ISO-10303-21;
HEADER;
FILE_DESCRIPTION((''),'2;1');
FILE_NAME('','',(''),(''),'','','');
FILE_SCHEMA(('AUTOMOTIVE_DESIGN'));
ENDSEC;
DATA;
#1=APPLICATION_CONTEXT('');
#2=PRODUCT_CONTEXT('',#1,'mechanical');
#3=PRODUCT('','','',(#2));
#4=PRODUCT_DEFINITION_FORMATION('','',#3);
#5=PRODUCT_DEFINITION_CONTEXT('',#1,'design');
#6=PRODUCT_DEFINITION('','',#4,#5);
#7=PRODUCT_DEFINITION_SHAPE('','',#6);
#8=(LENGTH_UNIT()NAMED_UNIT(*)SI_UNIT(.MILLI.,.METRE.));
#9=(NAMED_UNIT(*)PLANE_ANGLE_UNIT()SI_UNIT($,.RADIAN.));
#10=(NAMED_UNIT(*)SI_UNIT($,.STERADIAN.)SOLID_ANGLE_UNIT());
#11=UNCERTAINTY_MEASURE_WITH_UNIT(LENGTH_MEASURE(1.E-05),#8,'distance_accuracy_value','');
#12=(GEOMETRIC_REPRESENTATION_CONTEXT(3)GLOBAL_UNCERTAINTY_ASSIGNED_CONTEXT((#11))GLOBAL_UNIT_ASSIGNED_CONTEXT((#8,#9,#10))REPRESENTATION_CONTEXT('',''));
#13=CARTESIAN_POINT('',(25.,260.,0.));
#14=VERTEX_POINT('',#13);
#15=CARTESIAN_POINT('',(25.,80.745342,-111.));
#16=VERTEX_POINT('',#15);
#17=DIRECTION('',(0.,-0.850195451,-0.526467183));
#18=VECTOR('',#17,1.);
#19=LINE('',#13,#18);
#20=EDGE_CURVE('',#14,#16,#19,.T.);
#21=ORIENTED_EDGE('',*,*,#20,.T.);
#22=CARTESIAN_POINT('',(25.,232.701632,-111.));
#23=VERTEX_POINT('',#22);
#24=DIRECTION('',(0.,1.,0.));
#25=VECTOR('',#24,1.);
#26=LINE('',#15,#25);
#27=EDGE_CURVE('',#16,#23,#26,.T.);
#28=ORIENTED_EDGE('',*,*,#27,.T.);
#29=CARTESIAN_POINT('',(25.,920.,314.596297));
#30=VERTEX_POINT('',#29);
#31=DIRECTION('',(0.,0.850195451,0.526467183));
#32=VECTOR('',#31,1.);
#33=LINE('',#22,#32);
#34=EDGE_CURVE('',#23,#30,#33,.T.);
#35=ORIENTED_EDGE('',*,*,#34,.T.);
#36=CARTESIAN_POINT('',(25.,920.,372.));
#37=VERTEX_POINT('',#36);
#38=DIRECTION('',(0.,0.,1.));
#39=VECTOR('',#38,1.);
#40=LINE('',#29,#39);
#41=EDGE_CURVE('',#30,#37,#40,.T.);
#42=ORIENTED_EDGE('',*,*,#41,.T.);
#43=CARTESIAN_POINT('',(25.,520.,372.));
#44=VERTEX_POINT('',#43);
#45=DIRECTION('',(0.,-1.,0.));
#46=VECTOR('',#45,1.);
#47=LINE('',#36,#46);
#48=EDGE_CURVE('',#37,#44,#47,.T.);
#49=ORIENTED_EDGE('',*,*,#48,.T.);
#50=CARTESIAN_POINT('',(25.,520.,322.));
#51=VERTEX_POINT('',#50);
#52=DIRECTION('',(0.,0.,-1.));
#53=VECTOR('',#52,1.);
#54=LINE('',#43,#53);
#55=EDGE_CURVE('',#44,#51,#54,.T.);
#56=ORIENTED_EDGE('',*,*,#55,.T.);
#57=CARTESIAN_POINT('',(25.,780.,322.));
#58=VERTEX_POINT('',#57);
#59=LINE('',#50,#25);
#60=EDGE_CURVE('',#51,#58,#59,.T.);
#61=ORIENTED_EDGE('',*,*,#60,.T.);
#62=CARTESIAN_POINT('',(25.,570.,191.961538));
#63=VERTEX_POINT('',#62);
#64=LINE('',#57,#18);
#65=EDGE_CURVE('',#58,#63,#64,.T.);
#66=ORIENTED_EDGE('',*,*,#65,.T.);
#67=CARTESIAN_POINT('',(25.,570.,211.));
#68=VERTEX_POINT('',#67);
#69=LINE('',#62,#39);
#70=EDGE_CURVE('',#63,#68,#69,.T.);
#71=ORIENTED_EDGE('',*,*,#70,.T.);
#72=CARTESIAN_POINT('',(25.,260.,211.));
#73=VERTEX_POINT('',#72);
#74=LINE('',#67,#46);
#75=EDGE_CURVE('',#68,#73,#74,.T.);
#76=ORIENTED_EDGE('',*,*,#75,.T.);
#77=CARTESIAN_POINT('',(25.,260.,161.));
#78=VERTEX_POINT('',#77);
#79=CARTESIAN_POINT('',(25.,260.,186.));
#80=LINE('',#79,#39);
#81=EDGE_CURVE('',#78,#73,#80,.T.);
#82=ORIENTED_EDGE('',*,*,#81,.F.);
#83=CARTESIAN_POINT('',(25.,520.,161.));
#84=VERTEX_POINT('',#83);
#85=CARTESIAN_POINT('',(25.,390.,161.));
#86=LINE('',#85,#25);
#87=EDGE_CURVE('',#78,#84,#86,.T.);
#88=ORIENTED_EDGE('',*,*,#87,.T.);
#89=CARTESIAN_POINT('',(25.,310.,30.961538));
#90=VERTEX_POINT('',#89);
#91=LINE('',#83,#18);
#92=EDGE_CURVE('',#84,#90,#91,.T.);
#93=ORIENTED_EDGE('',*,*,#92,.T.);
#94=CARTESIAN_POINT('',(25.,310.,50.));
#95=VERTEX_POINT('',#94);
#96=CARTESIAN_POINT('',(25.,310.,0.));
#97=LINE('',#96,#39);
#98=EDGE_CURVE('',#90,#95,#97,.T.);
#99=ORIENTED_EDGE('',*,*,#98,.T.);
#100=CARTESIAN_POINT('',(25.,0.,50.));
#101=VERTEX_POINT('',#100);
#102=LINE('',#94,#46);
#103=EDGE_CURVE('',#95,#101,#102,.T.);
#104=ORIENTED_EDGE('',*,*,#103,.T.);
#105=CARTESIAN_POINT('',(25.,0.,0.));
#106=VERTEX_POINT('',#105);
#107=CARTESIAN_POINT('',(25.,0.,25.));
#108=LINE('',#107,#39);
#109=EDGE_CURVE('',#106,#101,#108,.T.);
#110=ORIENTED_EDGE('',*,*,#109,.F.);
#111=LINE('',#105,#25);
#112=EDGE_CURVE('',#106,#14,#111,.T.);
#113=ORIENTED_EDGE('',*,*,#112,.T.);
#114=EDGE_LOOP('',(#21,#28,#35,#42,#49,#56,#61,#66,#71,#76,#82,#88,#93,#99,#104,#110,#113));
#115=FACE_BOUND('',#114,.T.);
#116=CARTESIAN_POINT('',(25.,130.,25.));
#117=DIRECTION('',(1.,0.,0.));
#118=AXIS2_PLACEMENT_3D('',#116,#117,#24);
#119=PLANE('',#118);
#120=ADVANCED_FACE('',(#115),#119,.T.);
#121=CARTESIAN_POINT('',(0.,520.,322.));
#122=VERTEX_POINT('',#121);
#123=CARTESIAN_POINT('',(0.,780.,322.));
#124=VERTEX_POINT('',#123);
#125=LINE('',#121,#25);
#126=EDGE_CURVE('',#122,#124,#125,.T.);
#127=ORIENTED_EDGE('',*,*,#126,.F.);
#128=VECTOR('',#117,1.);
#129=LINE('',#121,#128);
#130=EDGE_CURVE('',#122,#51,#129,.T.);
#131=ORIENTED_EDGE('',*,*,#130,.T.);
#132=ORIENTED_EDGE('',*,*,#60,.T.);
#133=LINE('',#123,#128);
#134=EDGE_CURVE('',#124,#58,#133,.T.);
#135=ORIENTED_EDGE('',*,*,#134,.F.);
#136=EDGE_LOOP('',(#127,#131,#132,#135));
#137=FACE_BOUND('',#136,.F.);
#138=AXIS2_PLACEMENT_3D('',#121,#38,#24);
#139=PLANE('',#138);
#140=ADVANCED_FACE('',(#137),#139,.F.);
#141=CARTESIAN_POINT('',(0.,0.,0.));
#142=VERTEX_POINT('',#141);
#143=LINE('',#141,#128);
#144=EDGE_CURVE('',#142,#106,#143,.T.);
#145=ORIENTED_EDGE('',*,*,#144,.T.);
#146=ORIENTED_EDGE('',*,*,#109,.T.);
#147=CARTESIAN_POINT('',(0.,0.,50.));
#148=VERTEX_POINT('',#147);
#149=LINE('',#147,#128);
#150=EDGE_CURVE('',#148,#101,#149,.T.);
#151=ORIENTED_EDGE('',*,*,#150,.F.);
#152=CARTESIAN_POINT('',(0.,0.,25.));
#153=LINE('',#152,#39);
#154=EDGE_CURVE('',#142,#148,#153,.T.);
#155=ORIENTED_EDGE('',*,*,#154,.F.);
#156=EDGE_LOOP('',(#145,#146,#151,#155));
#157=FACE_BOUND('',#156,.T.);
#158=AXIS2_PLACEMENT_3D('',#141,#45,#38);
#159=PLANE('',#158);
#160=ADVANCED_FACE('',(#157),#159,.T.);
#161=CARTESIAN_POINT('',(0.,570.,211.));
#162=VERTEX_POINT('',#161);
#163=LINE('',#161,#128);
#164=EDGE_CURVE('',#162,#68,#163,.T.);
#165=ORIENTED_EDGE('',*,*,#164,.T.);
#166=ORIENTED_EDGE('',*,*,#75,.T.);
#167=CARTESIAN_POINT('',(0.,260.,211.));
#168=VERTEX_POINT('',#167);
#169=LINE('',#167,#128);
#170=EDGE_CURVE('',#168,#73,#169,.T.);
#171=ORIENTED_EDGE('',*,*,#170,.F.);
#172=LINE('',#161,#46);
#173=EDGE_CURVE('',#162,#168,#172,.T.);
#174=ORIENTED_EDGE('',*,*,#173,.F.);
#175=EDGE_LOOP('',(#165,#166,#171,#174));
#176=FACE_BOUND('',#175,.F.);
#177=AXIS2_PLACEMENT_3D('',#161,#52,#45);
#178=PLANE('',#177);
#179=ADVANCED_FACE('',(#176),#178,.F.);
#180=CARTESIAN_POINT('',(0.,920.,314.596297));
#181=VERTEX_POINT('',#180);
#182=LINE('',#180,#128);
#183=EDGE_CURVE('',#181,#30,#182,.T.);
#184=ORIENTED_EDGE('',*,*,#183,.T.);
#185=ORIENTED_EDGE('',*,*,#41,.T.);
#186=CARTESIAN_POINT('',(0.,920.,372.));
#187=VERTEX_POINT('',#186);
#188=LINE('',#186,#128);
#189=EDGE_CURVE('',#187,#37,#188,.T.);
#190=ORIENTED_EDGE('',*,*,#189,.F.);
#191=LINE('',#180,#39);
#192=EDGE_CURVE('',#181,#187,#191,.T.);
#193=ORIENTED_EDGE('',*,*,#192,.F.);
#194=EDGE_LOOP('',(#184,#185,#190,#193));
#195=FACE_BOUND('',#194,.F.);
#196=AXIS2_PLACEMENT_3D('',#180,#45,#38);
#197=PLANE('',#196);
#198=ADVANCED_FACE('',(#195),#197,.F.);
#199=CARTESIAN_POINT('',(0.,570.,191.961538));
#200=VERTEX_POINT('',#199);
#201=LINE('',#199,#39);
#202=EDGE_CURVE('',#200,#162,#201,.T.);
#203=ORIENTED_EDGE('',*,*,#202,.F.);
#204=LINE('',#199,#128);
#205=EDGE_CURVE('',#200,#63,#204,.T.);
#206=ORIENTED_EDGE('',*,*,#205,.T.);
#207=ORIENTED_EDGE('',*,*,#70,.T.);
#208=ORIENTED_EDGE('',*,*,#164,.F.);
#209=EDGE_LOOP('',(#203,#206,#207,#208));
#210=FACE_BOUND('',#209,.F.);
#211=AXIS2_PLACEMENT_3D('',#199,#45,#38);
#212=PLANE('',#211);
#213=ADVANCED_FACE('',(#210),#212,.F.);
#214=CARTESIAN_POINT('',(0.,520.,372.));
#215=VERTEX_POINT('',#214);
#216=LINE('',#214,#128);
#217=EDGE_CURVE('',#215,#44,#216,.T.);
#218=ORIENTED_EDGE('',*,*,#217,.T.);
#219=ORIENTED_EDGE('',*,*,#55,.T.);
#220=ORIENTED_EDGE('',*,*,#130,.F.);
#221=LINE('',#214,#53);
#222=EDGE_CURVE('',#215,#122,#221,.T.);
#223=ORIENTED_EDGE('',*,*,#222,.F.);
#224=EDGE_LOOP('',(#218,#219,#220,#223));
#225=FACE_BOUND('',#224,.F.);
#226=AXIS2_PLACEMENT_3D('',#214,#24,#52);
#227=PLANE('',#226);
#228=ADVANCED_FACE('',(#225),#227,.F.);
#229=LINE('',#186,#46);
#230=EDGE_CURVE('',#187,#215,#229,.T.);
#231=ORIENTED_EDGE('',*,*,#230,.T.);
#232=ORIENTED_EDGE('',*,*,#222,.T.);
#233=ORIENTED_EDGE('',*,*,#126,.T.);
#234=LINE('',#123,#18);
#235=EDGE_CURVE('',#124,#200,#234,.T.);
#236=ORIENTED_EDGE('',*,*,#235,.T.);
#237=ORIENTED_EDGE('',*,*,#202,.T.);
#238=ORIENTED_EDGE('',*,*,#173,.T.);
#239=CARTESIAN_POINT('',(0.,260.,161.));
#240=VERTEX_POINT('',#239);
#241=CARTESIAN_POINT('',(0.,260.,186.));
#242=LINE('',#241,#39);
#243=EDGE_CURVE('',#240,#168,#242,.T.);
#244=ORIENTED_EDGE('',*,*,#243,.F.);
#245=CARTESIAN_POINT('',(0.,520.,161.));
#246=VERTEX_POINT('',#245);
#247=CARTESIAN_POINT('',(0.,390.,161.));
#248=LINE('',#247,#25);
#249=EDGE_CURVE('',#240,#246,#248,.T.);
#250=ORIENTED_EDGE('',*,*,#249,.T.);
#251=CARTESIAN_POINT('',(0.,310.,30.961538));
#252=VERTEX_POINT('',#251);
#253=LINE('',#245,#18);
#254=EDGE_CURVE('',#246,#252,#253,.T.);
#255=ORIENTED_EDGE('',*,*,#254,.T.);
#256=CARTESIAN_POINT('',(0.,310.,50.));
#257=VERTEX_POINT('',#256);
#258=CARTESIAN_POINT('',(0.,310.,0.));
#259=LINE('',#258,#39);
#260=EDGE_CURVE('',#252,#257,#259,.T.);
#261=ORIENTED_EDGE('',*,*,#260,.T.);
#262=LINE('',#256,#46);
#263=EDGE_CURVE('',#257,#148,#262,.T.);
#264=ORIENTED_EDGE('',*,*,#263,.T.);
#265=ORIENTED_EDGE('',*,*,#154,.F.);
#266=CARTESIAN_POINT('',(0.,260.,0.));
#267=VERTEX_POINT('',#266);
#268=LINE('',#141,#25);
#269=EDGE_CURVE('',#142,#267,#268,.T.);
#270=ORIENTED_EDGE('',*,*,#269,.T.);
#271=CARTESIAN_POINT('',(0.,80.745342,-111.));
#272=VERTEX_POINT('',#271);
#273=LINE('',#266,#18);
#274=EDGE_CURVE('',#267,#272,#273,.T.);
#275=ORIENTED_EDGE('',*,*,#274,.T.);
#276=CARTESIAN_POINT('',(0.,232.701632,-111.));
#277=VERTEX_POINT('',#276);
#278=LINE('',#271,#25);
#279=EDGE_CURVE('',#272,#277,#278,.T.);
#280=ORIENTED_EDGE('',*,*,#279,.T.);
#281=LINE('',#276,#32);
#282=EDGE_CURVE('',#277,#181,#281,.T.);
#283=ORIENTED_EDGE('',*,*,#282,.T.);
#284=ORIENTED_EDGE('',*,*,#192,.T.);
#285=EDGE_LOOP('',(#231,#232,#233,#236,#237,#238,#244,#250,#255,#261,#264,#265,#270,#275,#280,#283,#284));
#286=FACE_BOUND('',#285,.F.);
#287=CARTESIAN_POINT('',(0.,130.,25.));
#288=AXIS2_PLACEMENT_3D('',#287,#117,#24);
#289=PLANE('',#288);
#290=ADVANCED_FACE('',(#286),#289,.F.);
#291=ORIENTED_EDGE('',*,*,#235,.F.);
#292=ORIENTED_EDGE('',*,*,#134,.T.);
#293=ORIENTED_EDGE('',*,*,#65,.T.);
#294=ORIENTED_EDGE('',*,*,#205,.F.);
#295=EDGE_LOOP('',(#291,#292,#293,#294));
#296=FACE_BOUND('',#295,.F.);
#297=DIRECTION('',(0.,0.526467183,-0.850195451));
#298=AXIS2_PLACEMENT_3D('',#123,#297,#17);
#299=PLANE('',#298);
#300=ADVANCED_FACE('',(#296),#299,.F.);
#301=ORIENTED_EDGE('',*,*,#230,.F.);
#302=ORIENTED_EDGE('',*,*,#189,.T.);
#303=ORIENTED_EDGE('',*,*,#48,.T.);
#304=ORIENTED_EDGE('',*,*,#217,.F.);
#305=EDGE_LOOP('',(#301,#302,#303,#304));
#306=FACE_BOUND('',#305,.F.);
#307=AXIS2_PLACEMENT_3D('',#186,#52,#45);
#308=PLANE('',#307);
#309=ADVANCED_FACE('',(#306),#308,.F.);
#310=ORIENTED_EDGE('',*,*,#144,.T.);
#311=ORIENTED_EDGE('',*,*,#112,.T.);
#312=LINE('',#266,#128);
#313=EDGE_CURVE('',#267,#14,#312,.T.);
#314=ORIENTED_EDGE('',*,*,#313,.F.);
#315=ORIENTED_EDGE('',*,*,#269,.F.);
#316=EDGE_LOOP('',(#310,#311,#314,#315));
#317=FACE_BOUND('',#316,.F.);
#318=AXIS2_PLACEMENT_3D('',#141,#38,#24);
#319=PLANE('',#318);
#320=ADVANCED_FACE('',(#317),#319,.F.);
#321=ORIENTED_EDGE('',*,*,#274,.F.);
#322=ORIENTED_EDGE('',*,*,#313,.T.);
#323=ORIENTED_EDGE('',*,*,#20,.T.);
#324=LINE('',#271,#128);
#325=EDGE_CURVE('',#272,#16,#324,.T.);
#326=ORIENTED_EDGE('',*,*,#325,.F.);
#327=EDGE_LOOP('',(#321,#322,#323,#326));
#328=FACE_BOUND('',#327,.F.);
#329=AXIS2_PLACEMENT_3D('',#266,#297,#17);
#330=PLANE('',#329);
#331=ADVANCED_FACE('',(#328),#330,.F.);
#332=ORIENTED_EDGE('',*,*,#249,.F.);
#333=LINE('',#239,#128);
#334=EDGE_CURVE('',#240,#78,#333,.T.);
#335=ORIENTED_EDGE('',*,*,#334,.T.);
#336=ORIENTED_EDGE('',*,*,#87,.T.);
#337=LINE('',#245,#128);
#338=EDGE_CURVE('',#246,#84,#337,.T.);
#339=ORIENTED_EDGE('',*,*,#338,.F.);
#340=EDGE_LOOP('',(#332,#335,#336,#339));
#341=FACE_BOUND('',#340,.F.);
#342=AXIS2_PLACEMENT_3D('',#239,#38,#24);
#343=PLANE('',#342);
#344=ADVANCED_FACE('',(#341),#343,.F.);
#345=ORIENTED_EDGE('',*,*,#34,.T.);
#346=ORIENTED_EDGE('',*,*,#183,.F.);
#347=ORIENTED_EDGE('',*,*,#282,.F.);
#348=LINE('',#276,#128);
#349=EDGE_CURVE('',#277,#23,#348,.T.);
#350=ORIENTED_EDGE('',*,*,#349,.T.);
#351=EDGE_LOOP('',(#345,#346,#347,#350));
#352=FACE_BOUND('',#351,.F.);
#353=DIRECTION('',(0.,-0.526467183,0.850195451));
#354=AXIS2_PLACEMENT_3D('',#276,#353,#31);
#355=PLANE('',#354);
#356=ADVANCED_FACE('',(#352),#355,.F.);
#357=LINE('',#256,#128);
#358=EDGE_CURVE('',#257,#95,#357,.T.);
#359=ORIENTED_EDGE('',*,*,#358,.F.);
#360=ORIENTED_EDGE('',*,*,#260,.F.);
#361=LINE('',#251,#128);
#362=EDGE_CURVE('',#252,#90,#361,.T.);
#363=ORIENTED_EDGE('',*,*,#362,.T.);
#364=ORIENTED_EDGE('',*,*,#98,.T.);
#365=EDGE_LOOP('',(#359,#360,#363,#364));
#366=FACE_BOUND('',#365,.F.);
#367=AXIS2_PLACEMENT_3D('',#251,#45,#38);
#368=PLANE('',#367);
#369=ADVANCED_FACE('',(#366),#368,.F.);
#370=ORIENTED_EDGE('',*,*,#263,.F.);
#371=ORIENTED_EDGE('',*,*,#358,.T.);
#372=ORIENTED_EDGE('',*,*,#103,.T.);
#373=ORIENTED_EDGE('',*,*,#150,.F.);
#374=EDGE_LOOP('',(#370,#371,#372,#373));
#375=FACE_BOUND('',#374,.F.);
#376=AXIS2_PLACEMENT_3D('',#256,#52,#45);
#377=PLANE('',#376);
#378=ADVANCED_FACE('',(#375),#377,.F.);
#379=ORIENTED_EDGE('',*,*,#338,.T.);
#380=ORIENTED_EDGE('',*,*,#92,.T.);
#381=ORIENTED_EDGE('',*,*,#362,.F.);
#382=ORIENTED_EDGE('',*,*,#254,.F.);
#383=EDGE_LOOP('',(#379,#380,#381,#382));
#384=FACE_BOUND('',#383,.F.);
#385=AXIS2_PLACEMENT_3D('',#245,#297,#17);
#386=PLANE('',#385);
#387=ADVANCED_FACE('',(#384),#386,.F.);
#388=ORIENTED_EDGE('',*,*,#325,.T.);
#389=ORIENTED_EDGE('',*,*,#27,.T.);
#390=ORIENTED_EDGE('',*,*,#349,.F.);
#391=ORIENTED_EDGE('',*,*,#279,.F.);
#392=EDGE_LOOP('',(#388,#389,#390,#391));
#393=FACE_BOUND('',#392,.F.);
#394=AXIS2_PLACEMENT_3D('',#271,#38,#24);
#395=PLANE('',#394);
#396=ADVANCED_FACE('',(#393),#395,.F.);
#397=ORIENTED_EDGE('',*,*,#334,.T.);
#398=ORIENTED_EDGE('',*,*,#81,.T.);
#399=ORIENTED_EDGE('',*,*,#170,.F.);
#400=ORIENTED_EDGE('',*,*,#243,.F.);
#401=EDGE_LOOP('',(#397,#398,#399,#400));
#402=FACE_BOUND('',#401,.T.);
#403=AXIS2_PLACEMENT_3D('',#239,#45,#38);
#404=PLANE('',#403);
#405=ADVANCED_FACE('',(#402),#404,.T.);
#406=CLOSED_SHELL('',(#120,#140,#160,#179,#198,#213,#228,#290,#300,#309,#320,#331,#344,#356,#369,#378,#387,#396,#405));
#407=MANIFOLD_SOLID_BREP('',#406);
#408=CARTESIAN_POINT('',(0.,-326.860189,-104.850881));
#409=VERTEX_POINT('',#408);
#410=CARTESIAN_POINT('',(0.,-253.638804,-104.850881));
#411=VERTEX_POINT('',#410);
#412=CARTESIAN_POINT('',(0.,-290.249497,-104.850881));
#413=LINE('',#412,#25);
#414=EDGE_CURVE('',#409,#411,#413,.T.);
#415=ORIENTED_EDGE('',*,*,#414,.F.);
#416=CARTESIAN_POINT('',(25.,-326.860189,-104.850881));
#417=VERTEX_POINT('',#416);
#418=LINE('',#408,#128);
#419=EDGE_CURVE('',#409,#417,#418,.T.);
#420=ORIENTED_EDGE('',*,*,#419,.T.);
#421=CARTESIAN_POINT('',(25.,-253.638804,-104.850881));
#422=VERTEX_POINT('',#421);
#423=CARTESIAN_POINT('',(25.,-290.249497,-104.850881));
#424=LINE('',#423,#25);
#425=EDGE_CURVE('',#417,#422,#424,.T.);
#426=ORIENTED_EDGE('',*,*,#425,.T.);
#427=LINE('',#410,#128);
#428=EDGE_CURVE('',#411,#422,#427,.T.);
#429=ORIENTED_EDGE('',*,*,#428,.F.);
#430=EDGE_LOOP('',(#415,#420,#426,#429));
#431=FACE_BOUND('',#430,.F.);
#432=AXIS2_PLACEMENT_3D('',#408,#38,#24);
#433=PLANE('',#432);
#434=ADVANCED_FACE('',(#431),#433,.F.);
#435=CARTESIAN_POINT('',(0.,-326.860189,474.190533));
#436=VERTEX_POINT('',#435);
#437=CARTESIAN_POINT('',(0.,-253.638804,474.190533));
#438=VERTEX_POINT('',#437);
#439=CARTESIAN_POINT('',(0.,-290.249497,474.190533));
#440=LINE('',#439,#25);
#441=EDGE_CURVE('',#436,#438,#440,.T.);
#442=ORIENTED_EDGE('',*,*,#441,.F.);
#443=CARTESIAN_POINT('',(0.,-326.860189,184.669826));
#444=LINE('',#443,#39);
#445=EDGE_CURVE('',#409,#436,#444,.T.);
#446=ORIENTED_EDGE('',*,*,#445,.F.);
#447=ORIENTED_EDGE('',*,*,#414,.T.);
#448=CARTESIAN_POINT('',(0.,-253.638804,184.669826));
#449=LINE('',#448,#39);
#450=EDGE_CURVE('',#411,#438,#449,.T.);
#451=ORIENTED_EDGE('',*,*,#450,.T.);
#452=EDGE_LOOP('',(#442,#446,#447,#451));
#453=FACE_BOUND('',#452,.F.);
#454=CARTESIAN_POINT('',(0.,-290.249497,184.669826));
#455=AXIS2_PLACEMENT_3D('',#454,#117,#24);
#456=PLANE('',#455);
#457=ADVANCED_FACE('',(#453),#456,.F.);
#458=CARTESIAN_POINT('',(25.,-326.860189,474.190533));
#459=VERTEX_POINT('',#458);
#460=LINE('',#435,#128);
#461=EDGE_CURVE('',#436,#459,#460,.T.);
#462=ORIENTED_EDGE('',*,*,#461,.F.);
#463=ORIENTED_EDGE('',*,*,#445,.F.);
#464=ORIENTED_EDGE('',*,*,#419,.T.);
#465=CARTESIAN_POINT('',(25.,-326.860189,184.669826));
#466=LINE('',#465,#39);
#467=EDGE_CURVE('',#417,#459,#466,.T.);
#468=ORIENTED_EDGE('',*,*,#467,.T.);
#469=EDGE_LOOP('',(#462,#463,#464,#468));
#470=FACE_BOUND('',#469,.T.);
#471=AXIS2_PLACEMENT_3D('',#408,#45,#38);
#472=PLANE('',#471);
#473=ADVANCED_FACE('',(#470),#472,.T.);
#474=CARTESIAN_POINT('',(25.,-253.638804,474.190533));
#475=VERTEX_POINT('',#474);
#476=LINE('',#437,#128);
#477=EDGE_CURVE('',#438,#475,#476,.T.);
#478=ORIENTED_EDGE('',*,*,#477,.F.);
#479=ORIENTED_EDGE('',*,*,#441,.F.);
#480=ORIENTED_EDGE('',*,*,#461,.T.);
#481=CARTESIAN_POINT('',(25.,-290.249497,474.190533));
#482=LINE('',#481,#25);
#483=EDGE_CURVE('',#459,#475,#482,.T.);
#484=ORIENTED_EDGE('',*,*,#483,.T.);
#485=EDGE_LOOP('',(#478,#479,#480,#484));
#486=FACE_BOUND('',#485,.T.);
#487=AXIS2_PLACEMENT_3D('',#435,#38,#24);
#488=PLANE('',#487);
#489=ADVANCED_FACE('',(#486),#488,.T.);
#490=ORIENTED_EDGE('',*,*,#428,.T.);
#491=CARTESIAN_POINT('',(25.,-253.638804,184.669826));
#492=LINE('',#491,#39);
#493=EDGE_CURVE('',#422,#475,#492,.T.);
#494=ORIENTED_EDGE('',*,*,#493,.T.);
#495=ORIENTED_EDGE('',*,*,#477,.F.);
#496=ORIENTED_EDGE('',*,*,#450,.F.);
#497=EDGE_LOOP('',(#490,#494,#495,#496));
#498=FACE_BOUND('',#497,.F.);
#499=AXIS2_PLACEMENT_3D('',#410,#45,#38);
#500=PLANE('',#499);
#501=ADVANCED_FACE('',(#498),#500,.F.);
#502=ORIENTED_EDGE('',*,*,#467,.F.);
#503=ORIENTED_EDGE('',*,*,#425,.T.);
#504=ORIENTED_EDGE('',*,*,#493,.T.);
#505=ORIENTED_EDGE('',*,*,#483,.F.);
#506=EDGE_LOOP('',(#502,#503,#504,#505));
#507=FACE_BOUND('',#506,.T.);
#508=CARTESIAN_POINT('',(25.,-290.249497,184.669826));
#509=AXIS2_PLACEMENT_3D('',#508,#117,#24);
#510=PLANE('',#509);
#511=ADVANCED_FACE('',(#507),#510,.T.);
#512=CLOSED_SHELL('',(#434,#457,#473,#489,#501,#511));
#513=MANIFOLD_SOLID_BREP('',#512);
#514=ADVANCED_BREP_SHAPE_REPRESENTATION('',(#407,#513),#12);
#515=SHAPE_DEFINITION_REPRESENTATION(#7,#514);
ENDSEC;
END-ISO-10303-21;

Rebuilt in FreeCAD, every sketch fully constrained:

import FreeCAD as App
import Part
import Sketcher
from FreeCAD import Vector
Q = App.Units.Quantity


def add_polygon(sketch, points):
    """Adds a closed chain of lines whose ends are joined by coincident constraints."""
    first, n = sketch.GeometryCount, len(points)
    for a, b in zip(points, points[1:] + points[:1]):
        sketch.addGeometry(Part.LineSegment(App.Vector(*a, 0), App.Vector(*b, 0)), False)
    for i in range(n):
        sketch.addConstraint(Sketcher.Constraint("Coincident", first + i, 2, first + (i + 1) % n, 1))

doc = App.newDocument("Part")
body = doc.addObject("PartDesign::Body", "Body")

# Sketch on YZ plane
sketch1 = doc.addObject("Sketcher::SketchObject", "Sketch")
body.addObject(sketch1)
sketch1.AttachmentSupport = (doc.YZ_Plane, [""])
sketch1.MapMode = "FlatFace"
add_polygon(sketch1, [(0, 50), (0, 0), (260, 0), (81, -111), (233, -111), (920, 315), (920, 372), (520, 372), (520, 322), (780, 322), (570, 192), (570, 211), (260, 211), (260, 161), (520, 161), (310, 31), (310, 50)])  # lines 0-16
sketch1.addConstraint([
    Sketcher.Constraint("Vertical", 0),
    Sketcher.Constraint("Horizontal", 1),
    Sketcher.Constraint("Horizontal", 3),
    Sketcher.Constraint("Vertical", 5),
    Sketcher.Constraint("Horizontal", 6),
    Sketcher.Constraint("Vertical", 7),
    Sketcher.Constraint("Horizontal", 8),
    Sketcher.Constraint("Vertical", 10),
    Sketcher.Constraint("Horizontal", 11),
    Sketcher.Constraint("Vertical", 12),
    Sketcher.Constraint("Horizontal", 13),
    Sketcher.Constraint("Vertical", 15),
    Sketcher.Constraint("Horizontal", 16),
    Sketcher.Constraint("Coincident", 0, 2, -1, 1),
    Sketcher.Constraint("Parallel", 2, 4),
    Sketcher.Constraint("Parallel", 4, 9),
    Sketcher.Constraint("Parallel", 9, 14),
    Sketcher.Constraint("Vertical", 1, 2, 11, 2),
    Sketcher.Constraint("Vertical", 7, 2, 13, 2),
    Sketcher.Constraint("Equal", 1, 8),
    Sketcher.Constraint("Equal", 8, 13),
    Sketcher.Constraint("Equal", 11, 16),
    Sketcher.Constraint("Equal", 0, 7),
    Sketcher.Constraint("Equal", 7, 12),
    Sketcher.Constraint("Equal", 10, 15),
    Sketcher.Constraint("DistanceX", 1, 1, 1, 2, Q("260 mm")),
    Sketcher.Constraint("DistanceX", 6, 2, 6, 1, Q("400 mm")),
    Sketcher.Constraint("DistanceX", 11, 2, 11, 1, Q("310 mm")),
    Sketcher.Constraint("DistanceY", 0, 2, 0, 1, Q("50 mm")),
    Sketcher.Constraint("DistanceY", 2, 2, -1, 1, Q("111 mm")),
    Sketcher.Constraint("DistanceY", -1, 1, 5, 2, Q("372 mm")),
    Sketcher.Constraint("DistanceX", 3, 1, 3, 2, Q("151.95629 mm")),
    Sketcher.Constraint("DistanceY", 10, 1, 10, 2, Q("19.038462 mm")),
])
pad1 = doc.addObject("PartDesign::Pad", "Pad")
body.addObject(pad1)
pad1.Profile = sketch1
pad1.Length = 25
body2 = doc.addObject("PartDesign::Body", "Body001")

# Sketch on YZ plane
sketch2 = doc.addObject("Sketcher::SketchObject", "Sketch001")
body2.addObject(sketch2)
sketch2.AttachmentSupport = (doc.getObject("YZ_Plane001"), [""])
sketch2.MapMode = "FlatFace"
add_polygon(sketch2, [(-327, 474), (-327, -105), (-254, -105), (-254, 474)])  # lines 0-3
sketch2.addConstraint([
    Sketcher.Constraint("Vertical", 0),
    Sketcher.Constraint("Horizontal", 1),
    Sketcher.Constraint("Vertical", 2),
    Sketcher.Constraint("Horizontal", 3),
    Sketcher.Constraint("DistanceX", 1, 1, 1, 2, Q("73.221385 mm")),
    Sketcher.Constraint("DistanceY", 0, 2, 0, 1, Q("579.041414 mm")),
    Sketcher.Constraint("DistanceX", 0, 2, -1, 1, Q("326.860189 mm")),
    Sketcher.Constraint("DistanceY", 0, 2, -1, 1, Q("104.850881 mm")),
])
pad2 = doc.addObject("PartDesign::Pad", "Pad001")
body2.addObject(pad2)
pad2.Profile = sketch2
pad2.Length = 25

doc.recompute()
